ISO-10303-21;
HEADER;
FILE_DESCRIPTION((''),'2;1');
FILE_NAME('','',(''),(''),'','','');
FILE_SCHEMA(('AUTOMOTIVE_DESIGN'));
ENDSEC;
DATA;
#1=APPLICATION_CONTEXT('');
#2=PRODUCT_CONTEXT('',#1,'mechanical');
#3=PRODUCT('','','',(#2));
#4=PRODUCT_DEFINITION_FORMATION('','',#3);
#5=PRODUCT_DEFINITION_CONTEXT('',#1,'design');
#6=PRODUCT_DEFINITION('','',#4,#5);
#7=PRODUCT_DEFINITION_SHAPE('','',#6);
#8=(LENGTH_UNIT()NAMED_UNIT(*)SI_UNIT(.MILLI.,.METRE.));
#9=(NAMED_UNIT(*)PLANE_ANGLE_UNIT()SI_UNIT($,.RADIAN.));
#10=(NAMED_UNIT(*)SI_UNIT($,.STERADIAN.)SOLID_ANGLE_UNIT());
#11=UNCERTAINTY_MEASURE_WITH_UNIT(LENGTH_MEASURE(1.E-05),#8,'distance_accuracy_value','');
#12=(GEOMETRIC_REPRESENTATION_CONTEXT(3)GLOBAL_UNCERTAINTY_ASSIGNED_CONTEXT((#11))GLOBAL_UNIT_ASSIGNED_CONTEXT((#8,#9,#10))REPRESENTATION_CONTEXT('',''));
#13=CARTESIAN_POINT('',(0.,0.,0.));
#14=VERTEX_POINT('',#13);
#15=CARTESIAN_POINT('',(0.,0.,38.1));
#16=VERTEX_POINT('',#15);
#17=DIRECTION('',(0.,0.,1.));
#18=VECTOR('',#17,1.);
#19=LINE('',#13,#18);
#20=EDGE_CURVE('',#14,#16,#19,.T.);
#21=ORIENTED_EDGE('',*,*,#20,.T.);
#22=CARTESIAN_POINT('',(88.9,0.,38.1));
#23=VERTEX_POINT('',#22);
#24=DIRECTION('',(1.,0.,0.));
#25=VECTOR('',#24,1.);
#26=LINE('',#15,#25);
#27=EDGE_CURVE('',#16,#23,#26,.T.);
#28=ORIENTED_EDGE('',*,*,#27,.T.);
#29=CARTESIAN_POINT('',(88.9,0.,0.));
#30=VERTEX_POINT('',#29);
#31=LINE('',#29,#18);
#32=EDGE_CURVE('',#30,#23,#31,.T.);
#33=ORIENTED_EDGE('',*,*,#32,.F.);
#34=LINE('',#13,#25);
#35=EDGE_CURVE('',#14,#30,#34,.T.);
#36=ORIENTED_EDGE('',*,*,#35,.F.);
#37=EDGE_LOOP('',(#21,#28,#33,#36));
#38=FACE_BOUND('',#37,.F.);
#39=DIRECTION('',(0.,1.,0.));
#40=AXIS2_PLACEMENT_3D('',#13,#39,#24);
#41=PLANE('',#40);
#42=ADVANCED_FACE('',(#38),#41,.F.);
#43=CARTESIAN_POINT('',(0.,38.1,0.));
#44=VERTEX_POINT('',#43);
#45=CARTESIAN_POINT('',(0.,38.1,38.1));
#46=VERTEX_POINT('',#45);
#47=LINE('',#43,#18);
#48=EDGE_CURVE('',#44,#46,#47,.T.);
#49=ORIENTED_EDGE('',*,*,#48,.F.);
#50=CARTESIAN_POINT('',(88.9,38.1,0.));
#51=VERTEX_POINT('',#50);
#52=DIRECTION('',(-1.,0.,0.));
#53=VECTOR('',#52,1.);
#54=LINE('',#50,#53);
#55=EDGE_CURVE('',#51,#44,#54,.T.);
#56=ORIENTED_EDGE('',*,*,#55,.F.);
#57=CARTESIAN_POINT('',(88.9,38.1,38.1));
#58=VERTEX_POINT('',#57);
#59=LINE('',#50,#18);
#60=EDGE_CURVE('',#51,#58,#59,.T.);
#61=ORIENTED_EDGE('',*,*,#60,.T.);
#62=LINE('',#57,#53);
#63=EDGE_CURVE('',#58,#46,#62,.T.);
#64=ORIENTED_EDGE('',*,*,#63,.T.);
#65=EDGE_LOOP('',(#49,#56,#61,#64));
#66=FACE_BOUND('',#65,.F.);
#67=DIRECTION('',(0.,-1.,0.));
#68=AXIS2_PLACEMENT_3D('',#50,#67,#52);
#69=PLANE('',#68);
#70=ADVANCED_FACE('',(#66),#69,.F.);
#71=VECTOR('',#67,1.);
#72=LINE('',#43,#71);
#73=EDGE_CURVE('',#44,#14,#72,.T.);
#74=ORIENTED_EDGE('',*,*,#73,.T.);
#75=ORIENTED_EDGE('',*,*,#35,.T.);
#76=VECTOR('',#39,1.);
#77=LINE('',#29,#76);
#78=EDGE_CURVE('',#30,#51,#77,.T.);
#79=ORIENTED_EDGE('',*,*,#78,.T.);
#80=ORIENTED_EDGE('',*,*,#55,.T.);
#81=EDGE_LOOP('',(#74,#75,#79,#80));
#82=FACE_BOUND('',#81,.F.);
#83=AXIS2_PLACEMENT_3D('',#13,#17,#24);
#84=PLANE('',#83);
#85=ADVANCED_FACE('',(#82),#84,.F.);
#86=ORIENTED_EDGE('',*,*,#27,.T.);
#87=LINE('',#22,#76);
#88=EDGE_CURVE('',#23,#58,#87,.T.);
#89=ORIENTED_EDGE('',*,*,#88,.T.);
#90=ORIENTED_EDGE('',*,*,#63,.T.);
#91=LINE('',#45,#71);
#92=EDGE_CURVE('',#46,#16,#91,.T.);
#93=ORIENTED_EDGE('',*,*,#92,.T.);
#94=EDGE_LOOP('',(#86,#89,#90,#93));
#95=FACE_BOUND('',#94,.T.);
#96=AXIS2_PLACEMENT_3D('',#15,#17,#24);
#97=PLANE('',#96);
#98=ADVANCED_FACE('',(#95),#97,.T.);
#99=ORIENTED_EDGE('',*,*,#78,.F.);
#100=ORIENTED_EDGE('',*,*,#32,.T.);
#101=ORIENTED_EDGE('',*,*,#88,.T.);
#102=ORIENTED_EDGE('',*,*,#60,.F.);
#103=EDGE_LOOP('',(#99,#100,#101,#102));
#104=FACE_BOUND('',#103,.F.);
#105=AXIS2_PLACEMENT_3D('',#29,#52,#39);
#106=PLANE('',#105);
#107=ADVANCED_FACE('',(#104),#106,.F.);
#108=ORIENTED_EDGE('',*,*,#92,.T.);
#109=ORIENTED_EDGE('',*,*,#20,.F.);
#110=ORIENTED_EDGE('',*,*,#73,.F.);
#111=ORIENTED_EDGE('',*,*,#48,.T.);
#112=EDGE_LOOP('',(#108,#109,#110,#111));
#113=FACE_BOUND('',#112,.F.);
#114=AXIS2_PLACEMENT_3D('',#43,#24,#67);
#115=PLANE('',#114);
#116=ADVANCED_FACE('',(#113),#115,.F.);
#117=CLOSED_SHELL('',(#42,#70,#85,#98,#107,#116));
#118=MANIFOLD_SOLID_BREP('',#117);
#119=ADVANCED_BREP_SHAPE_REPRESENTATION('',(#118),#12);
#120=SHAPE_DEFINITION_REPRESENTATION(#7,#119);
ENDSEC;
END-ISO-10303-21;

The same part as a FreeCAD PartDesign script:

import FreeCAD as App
import Part
import Sketcher

V = App.Vector
Q = App.Units.Quantity

doc = App.newDocument("Part")
body = doc.addObject("PartDesign::Body", "Body")

sketch1 = doc.addObject("Sketcher::SketchObject", "Sketch")
body.addObject(sketch1)
sketch1.AttachmentSupport = (doc.XY_Plane, [""])
sketch1.MapMode = "FlatFace"
sketch1.addGeometry([
    Part.LineSegment(V(0, 38, 0), V(0, 0, 0)),
    Part.LineSegment(V(0, 0, 0), V(89, 0, 0)),
    Part.LineSegment(V(89, 0, 0), V(89, 38, 0)),
    Part.LineSegment(V(89, 38, 0), V(0, 38, 0)),
], False)
sketch1.addConstraint([
    Sketcher.Constraint("Coincident", 0, 2, 1, 1),
    Sketcher.Constraint("Coincident", 1, 2, 2, 1),
    Sketcher.Constraint("Coincident", 2, 2, 3, 1),
    Sketcher.Constraint("Coincident", 3, 2, 0, 1),
    Sketcher.Constraint("Vertical", 0),
    Sketcher.Constraint("Horizontal", 1),
    Sketcher.Constraint("Vertical", 2),
    Sketcher.Constraint("Horizontal", 3),
    Sketcher.Constraint("Coincident", 0, 2, -1, 1),
    Sketcher.Constraint("DistanceX", 1, 1, 1, 2, Q("3.5 in")),
    Sketcher.Constraint("DistanceY", 0, 2, 0, 1, Q("1.5 in")),
])
pad1 = doc.addObject("PartDesign::Pad", "Pad")
body.addObject(pad1)
pad1.Profile = sketch1
pad1.Length = Q("1.5 in")

doc.recompute()
